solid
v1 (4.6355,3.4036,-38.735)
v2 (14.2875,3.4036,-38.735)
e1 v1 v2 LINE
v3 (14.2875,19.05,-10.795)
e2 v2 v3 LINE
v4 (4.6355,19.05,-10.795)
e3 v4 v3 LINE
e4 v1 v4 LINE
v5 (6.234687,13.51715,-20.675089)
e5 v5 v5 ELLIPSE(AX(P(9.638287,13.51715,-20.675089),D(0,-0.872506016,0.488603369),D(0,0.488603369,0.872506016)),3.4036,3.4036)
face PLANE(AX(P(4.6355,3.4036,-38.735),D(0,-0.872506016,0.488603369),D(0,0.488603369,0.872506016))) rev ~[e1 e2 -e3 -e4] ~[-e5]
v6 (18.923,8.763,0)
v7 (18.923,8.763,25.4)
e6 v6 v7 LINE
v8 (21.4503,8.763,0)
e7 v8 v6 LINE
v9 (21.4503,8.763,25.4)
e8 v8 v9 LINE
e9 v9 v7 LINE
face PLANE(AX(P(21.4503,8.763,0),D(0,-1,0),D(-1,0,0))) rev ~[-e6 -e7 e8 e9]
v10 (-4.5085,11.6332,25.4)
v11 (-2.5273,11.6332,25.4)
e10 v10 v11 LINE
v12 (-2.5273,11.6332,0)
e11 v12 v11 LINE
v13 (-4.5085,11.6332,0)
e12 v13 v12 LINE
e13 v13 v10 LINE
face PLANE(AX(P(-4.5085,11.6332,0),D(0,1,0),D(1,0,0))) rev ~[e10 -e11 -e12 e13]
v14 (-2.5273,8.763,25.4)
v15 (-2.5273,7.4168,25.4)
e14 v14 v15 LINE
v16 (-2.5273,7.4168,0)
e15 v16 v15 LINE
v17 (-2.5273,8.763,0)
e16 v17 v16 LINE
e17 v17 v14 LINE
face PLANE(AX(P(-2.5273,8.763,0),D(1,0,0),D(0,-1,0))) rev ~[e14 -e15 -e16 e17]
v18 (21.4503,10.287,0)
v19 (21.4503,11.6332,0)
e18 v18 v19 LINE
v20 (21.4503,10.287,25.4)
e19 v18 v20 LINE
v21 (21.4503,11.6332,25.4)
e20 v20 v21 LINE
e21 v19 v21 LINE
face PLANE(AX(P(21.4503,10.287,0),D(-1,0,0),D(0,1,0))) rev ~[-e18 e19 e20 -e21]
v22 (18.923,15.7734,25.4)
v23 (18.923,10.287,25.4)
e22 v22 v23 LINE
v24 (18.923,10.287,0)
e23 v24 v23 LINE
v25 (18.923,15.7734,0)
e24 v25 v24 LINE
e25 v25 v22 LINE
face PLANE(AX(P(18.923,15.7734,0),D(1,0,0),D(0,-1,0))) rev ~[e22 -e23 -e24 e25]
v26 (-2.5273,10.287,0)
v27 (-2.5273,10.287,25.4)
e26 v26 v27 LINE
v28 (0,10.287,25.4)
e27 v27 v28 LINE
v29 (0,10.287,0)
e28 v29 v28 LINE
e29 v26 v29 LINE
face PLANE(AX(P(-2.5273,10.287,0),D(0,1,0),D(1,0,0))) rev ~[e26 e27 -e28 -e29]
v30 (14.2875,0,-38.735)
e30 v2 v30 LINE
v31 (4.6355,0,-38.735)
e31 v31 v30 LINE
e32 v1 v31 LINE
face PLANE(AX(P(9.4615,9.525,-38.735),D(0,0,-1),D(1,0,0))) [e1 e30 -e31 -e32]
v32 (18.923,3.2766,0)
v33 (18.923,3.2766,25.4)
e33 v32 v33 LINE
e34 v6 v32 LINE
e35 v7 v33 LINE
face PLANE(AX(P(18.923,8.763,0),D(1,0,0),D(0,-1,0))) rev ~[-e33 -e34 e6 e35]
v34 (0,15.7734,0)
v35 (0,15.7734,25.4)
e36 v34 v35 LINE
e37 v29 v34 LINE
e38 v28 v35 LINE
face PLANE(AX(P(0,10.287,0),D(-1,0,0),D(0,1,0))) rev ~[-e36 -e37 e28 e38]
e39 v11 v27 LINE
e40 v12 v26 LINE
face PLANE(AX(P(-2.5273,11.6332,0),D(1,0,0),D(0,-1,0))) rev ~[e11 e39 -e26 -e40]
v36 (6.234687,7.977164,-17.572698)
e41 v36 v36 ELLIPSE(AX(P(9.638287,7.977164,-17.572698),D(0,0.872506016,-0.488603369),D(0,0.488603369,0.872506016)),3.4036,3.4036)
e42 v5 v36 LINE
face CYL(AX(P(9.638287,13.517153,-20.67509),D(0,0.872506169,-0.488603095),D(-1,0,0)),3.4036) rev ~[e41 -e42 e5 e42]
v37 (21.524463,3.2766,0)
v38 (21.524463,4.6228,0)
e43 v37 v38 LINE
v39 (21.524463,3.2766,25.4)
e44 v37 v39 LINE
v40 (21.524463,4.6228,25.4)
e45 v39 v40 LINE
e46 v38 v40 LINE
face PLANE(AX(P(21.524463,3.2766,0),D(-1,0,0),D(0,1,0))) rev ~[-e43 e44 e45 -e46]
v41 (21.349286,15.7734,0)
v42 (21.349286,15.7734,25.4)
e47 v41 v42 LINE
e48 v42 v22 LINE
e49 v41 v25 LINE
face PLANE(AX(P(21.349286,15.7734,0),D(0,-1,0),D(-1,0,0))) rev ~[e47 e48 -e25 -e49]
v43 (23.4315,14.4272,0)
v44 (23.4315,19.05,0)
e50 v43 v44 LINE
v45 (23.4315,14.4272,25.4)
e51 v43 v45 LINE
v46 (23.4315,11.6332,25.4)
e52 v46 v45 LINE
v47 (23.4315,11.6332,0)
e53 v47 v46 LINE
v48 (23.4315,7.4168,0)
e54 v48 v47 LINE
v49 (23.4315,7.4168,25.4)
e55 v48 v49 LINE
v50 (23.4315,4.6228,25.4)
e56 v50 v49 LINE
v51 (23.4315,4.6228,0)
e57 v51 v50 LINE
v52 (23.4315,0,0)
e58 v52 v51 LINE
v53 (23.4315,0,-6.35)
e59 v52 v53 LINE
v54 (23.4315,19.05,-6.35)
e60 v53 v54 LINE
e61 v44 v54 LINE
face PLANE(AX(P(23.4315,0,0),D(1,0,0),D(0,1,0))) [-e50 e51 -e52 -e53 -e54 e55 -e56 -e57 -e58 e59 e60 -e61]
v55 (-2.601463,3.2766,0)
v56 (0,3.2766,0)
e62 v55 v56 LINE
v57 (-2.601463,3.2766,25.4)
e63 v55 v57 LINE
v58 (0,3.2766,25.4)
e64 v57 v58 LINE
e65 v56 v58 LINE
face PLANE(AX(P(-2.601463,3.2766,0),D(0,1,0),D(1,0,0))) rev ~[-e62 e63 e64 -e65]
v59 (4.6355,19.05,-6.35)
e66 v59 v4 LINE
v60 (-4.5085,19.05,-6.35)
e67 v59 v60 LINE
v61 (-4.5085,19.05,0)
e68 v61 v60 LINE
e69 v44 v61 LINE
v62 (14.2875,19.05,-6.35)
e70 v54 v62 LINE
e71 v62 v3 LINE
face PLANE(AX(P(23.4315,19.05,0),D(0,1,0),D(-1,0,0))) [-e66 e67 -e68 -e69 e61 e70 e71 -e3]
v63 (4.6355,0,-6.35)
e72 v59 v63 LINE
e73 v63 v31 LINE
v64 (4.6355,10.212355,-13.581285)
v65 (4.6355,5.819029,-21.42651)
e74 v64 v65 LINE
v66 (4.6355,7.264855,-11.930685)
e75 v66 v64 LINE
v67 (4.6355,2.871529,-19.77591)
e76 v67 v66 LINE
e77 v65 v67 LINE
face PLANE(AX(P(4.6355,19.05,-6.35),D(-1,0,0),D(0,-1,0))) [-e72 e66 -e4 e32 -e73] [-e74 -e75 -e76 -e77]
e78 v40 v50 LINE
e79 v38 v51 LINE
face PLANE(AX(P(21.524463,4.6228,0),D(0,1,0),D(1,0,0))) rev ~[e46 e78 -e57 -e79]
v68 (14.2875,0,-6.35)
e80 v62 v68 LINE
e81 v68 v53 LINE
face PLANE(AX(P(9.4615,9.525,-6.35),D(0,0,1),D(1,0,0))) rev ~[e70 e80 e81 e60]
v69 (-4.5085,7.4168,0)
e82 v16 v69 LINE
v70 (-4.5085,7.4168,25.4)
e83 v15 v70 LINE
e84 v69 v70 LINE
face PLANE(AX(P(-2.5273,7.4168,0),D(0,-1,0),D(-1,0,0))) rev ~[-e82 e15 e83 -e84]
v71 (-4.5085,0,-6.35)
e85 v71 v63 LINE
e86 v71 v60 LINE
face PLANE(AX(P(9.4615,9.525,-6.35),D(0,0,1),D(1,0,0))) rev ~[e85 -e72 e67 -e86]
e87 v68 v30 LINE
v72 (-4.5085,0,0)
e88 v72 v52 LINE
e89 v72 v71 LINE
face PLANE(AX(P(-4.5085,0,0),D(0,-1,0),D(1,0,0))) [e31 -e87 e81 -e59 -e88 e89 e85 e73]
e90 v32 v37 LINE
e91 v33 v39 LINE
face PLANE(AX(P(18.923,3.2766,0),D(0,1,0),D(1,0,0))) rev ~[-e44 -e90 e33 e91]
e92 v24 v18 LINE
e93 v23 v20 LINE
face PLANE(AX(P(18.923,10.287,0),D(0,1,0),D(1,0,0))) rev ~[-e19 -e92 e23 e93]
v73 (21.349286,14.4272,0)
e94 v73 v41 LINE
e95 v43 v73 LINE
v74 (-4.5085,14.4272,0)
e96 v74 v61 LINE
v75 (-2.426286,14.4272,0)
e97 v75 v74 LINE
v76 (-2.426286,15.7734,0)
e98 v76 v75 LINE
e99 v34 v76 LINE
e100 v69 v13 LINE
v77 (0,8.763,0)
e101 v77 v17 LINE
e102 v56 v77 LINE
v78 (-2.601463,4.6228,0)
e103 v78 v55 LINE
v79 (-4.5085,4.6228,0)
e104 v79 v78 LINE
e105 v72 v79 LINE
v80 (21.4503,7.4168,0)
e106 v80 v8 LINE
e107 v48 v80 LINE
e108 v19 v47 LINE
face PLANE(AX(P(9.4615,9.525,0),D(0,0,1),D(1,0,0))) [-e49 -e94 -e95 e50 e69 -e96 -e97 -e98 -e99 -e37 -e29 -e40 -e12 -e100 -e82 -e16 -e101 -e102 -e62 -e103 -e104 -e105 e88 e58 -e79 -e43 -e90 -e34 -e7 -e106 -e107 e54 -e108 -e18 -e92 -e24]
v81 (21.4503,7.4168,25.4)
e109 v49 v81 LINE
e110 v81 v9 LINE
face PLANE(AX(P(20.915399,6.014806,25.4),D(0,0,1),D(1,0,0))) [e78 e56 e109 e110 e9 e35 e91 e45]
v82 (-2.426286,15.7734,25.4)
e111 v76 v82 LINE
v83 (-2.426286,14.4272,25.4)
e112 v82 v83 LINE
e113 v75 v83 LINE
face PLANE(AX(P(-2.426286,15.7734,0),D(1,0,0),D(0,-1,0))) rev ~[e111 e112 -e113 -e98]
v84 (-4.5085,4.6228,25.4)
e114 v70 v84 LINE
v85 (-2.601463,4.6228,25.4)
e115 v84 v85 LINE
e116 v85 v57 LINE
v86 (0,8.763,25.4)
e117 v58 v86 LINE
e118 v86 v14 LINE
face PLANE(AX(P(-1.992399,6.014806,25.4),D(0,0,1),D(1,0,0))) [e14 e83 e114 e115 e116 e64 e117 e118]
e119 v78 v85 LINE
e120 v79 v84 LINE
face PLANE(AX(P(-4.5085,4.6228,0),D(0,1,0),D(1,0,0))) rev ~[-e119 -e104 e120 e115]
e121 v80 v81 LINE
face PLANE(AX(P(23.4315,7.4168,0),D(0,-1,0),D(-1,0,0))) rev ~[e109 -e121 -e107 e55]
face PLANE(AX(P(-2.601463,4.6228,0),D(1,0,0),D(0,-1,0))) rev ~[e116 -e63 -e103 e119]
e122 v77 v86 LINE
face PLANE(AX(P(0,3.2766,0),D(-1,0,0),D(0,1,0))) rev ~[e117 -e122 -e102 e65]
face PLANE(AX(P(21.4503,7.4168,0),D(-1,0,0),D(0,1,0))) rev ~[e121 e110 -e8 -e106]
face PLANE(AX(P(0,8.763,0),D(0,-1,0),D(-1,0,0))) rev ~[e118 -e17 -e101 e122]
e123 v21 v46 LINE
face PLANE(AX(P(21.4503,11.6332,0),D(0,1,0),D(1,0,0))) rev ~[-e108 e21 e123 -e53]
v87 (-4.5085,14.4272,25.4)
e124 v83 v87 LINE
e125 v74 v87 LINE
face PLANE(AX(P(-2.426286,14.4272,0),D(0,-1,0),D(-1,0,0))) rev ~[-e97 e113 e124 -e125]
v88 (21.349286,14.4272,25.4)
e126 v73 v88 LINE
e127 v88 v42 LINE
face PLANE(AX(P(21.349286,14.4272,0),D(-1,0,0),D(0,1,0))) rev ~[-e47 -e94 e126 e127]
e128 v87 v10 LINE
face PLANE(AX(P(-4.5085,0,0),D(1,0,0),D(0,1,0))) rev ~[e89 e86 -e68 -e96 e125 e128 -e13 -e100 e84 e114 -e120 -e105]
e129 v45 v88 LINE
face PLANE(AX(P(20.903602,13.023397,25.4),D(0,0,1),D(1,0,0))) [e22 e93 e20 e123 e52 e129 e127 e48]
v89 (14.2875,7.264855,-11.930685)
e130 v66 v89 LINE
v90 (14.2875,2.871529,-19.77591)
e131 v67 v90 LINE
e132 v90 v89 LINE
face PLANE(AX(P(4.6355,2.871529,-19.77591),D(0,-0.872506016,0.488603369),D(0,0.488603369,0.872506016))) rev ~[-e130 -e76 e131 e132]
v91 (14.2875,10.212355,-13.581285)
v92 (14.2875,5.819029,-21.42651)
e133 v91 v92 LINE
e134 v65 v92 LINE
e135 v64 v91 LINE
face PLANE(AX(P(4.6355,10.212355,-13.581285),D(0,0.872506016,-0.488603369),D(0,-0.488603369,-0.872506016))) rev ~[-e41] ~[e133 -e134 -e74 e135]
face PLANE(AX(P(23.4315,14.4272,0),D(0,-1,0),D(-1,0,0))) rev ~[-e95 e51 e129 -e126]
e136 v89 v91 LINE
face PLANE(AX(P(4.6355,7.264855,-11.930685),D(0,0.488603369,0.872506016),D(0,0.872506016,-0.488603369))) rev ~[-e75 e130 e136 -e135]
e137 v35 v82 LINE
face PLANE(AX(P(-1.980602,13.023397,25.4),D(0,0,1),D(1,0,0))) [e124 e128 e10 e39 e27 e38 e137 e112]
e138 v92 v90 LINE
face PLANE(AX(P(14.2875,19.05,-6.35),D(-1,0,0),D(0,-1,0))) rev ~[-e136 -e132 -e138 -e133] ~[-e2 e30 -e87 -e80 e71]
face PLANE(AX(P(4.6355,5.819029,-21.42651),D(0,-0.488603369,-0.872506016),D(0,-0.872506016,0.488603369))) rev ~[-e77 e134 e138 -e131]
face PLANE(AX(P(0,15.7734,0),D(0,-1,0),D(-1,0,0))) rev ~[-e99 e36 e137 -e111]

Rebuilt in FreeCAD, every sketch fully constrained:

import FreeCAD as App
import Part
import Sketcher
from FreeCAD import Vector
Q = App.Units.Quantity

doc = App.newDocument("Part")
body = doc.addObject("PartDesign::Body", "Body")

# Sketch on XY plane
sketch1 = body.newObject("Sketcher::SketchObject", "Sketch")
sketch1.AttachmentSupport = (doc.getObject("XY_Plane"), [""])
sketch1.MapMode = "FlatFace"
sketch1.addGeometry([
    Part.LineSegment(Vector(-5, 19, 0), Vector(-5, 0, 0)),
    Part.LineSegment(Vector(-5, 0, 0), Vector(23, 0, 0)),
    Part.LineSegment(Vector(23, 0, 0), Vector(23, 19, 0)),
    Part.LineSegment(Vector(23, 19, 0), Vector(-5, 19, 0)),
], False)
sketch1.addConstraint([
    Sketcher.Constraint("Coincident", 0, 2, 1, 1),
    Sketcher.Constraint("Coincident", 1, 2, 2, 1),
    Sketcher.Constraint("Coincident", 2, 2, 3, 1),
    Sketcher.Constraint("Coincident", 3, 2, 0, 1),
    Sketcher.Constraint("Vertical", 0),
    Sketcher.Constraint("Horizontal", 1),
    Sketcher.Constraint("Vertical", 2),
    Sketcher.Constraint("Horizontal", 3),
    Sketcher.Constraint("PointOnObject", 0, 2, -1),
    Sketcher.Constraint("DistanceX", 1, 1, 1, 2, Q("1.1 in")),
    Sketcher.Constraint("DistanceY", 0, 2, 0, 1, Q("0.75 in")),
    Sketcher.Constraint("DistanceX", 0, 2, -1, 1, Q("0.1775 in")),
])
pad1 = body.newObject("PartDesign::Pad", "Pad")
pad1.Profile = sketch1
pad1.Length = Q("0.25 in")
pad1.Reversed = True

# Sketch on XY plane
sketch2 = body.newObject("Sketcher::SketchObject", "Sketch001")
sketch2.AttachmentSupport = (doc.getObject("XY_Plane"), [""])
sketch2.MapMode = "FlatFace"
sketch2.addGeometry([
    Part.LineSegment(Vector(-2.5, 10.3, 0), Vector(0, 10.3, 0)),  # 0
    Part.LineSegment(Vector(0, 10.3, 0), Vector(0, 15.8, 0)),  # 1
    Part.LineSegment(Vector(0, 15.8, 0), Vector(-2.4, 15.8, 0)),  # 2
    Part.LineSegment(Vector(-2.4, 15.8, 0), Vector(-2.4, 14.4, 0)),  # 3
    Part.LineSegment(Vector(-2.4, 14.4, 0), Vector(-4.5, 14.4, 0)),  # 4
    Part.LineSegment(Vector(-4.5, 14.4, 0), Vector(-4.5, 11.6, 0)),  # 5
    Part.LineSegment(Vector(-4.5, 11.6, 0), Vector(-2.5, 11.6, 0)),  # 6
    Part.LineSegment(Vector(-2.5, 11.6, 0), Vector(-2.5, 10.3, 0)),  # 7
    Part.LineSegment(Vector(21.5, 7.4, 0), Vector(21.5, 8.8, 0)),  # 8
    Part.LineSegment(Vector(21.5, 8.8, 0), Vector(18.9, 8.8, 0)),  # 9
    Part.LineSegment(Vector(18.9, 8.8, 0), Vector(18.9, 3.3, 0)),  # 10
    Part.LineSegment(Vector(18.9, 3.3, 0), Vector(21.5, 3.3, 0)),  # 11
    Part.LineSegment(Vector(21.5, 3.3, 0), Vector(21.5, 4.6, 0)),  # 12
    Part.LineSegment(Vector(21.5, 4.6, 0), Vector(23.4, 4.6, 0)),  # 13
    Part.LineSegment(Vector(23.4, 4.6, 0), Vector(23.4, 7.4, 0)),  # 14
    Part.LineSegment(Vector(23.4, 7.4, 0), Vector(21.5, 7.4, 0)),  # 15
    Part.LineSegment(Vector(18.9, 15.8, 0), Vector(18.9, 10.3, 0)),  # 16
    Part.LineSegment(Vector(18.9, 10.3, 0), Vector(21.5, 10.3, 0)),  # 17
    Part.LineSegment(Vector(21.5, 10.3, 0), Vector(21.5, 11.6, 0)),  # 18
    Part.LineSegment(Vector(21.5, 11.6, 0), Vector(23.4, 11.6, 0)),  # 19
    Part.LineSegment(Vector(23.4, 11.6, 0), Vector(23.4, 14.4, 0)),  # 20
    Part.LineSegment(Vector(23.4, 14.4, 0), Vector(21.3, 14.4, 0)),  # 21
    Part.LineSegment(Vector(21.3, 14.4, 0), Vector(21.3, 15.8, 0)),  # 22
    Part.LineSegment(Vector(21.3, 15.8, 0), Vector(18.9, 15.8, 0)),  # 23
    Part.LineSegment(Vector(0, 3.3, 0), Vector(0, 8.8, 0)),  # 24
    Part.LineSegment(Vector(0, 8.8, 0), Vector(-2.5, 8.8, 0)),  # 25
    Part.LineSegment(Vector(-2.5, 8.8, 0), Vector(-2.5, 7.4, 0)),  # 26
    Part.LineSegment(Vector(-2.5, 7.4, 0), Vector(-4.5, 7.4, 0)),  # 27
    Part.LineSegment(Vector(-4.5, 7.4, 0), Vector(-4.5, 4.6, 0)),  # 28
    Part.LineSegment(Vector(-4.5, 4.6, 0), Vector(-2.6, 4.6, 0)),  # 29
    Part.LineSegment(Vector(-2.6, 4.6, 0), Vector(-2.6, 3.3, 0)),  # 30
    Part.LineSegment(Vector(-2.6, 3.3, 0), Vector(0, 3.3, 0)),  # 31
], False)
sketch2.addConstraint([
    Sketcher.Constraint("Coincident", 0, 2, 1, 1),
    Sketcher.Constraint("Coincident", 1, 2, 2, 1),
    Sketcher.Constraint("Coincident", 2, 2, 3, 1),
    Sketcher.Constraint("Coincident", 3, 2, 4, 1),
    Sketcher.Constraint("Coincident", 4, 2, 5, 1),
    Sketcher.Constraint("Coincident", 5, 2, 6, 1),
    Sketcher.Constraint("Coincident", 6, 2, 7, 1),
    Sketcher.Constraint("Coincident", 7, 2, 0, 1),
    Sketcher.Constraint("Coincident", 8, 2, 9, 1),
    Sketcher.Constraint("Coincident", 9, 2, 10, 1),
    Sketcher.Constraint("Coincident", 10, 2, 11, 1),
    Sketcher.Constraint("Coincident", 11, 2, 12, 1),
    Sketcher.Constraint("Coincident", 12, 2, 13, 1),
    Sketcher.Constraint("Coincident", 13, 2, 14, 1),
    Sketcher.Constraint("Coincident", 14, 2, 15, 1),
    Sketcher.Constraint("Coincident", 15, 2, 8, 1),
    Sketcher.Constraint("Coincident", 16, 2, 17, 1),
    Sketcher.Constraint("Coincident", 17, 2, 18, 1),
    Sketcher.Constraint("Coincident", 18, 2, 19, 1),
    Sketcher.Constraint("Coincident", 19, 2, 20, 1),
    Sketcher.Constraint("Coincident", 20, 2, 21, 1),
    Sketcher.Constraint("Coincident", 21, 2, 22, 1),
    Sketcher.Constraint("Coincident", 22, 2, 23, 1),
    Sketcher.Constraint("Coincident", 23, 2, 16, 1),
    Sketcher.Constraint("Coincident", 24, 2, 25, 1),
    Sketcher.Constraint("Coincident", 25, 2, 26, 1),
    Sketcher.Constraint("Coincident", 26, 2, 27, 1),
    Sketcher.Constraint("Coincident", 27, 2, 28, 1),
    Sketcher.Constraint("Coincident", 28, 2, 29, 1),
    Sketcher.Constraint("Coincident", 29, 2, 30, 1),
    Sketcher.Constraint("Coincident", 30, 2, 31, 1),
    Sketcher.Constraint("Coincident", 31, 2, 24, 1),
    Sketcher.Constraint("Horizontal", 0),
    Sketcher.Constraint("Vertical", 1),
    Sketcher.Constraint("Horizontal", 2),
    Sketcher.Constraint("Vertical", 3),
    Sketcher.Constraint("Horizontal", 4),
    Sketcher.Constraint("Vertical", 5),
    Sketcher.Constraint("Horizontal", 6),
    Sketcher.Constraint("Vertical", 7),
    Sketcher.Constraint("Vertical", 8),
    Sketcher.Constraint("Horizontal", 9),
    Sketcher.Constraint("Vertical", 10),
    Sketcher.Constraint("Horizontal", 11),
    Sketcher.Constraint("Vertical", 12),
    Sketcher.Constraint("Horizontal", 13),
    Sketcher.Constraint("Vertical", 14),
    Sketcher.Constraint("Horizontal", 15),
    Sketcher.Constraint("Vertical", 16),
    Sketcher.Constraint("Horizontal", 17),
    Sketcher.Constraint("Vertical", 18),
    Sketcher.Constraint("Horizontal", 19),
    Sketcher.Constraint("Vertical", 20),
    Sketcher.Constraint("Horizontal", 21),
    Sketcher.Constraint("Vertical", 22),
    Sketcher.Constraint("Horizontal", 23),
    Sketcher.Constraint("Vertical", 24),
    Sketcher.Constraint("Horizontal", 25),
    Sketcher.Constraint("Vertical", 26),
    Sketcher.Constraint("Horizontal", 27),
    Sketcher.Constraint("Vertical", 28),
    Sketcher.Constraint("Horizontal", 29),
    Sketcher.Constraint("Vertical", 30),
    Sketcher.Constraint("Horizontal", 31),
    Sketcher.Constraint("PointOnObject", 0, 2, -2),
    Sketcher.Constraint("PointOnObject", 24, 2, -2),
    Sketcher.Constraint("Horizontal", 7, 2, 16, 2),
    Sketcher.Constraint("Horizontal", 6, 2, 18, 2),
    Sketcher.Constraint("Horizontal", 4, 2, 20, 2),
    Sketcher.Constraint("Horizontal", 2, 2, 22, 2),
    Sketcher.Constraint("Horizontal", 9, 2, 24, 2),
    Sketcher.Constraint("Horizontal", 15, 2, 26, 2),
    Sketcher.Constraint("Horizontal", 13, 2, 28, 2),
    Sketcher.Constraint("Horizontal", 11, 2, 30, 2),
    Sketcher.Constraint("Vertical", 10, 2, 16, 2),
    Sketcher.Constraint("Vertical", 15, 2, 17, 2),
    Sketcher.Constraint("Vertical", 14, 2, 19, 2),
    Sketcher.Constraint("Vertical", 7, 2, 25, 2),
    Sketcher.Constraint("Vertical", 5, 2, 27, 2),
    Sketcher.Constraint("Equal", 0, 9),
    Sketcher.Constraint("Equal", 6, 15),
    Sketcher.Constraint("Equal", 4, 21),
    Sketcher.Constraint("Equal", 13, 29),
    Sketcher.Constraint("Equal", 3, 7),
    Sketcher.Constraint("Equal", 7, 8),
    Sketcher.Constraint("Equal", 1, 10),
    Sketcher.Constraint("Equal", 8, 12),
    Sketcher.Constraint("DistanceY", 5, 2, 5, 1, Q("0.11 in")),
    Sketcher.Constraint("DistanceX", 6, 1, 6, 2, Q("0.078 in")),
    Sketcher.Constraint("DistanceY", 1, 1, 1, 2, Q("0.216 in")),
    Sketcher.Constraint("DistanceY", 8, 2, 0, 2, Q("0.06 in")),
    Sketcher.Constraint("DistanceX", 0, 1, 0, 2, Q("0.0995 in")),
    Sketcher.Constraint("DistanceY", -1, 1, 0, 2, Q("0.405 in")),
    Sketcher.Constraint("DistanceX", -1, 1, 9, 2, Q("0.745 in")),
    Sketcher.Constraint("DistanceX", 2, 2, 2, 1, 2.426286),
    Sketcher.Constraint("DistanceX", 11, 1, 11, 2, 2.601463),
])
pad2 = body.newObject("PartDesign::Pad", "Pad001")
pad2.Profile = sketch2
pad2.Length = Q("1 in")

# Sketch on XY plane
sketch3 = body.newObject("Sketcher::SketchObject", "Sketch002")
sketch3.AttachmentSupport = (doc.getObject("XY_Plane"), [""])
sketch3.MapMode = "FlatFace"
sketch3.AttachmentOffset = App.Placement(Vector(0, 0, -0.25 * 25.4), App.Rotation())
sketch3.addGeometry([
    Part.LineSegment(Vector(5, 0, 0), Vector(5, 19, 0)),
    Part.LineSegment(Vector(5, 19, 0), Vector(14, 19, 0)),
    Part.LineSegment(Vector(14, 19, 0), Vector(14, 0, 0)),
    Part.LineSegment(Vector(14, 0, 0), Vector(5, 0, 0)),
], False)
sketch3.addConstraint([
    Sketcher.Constraint("Coincident", 0, 2, 1, 1),
    Sketcher.Constraint("Coincident", 1, 2, 2, 1),
    Sketcher.Constraint("Coincident", 2, 2, 3, 1),
    Sketcher.Constraint("Coincident", 3, 2, 0, 1),
    Sketcher.Constraint("Vertical", 0),
    Sketcher.Constraint("Horizontal", 1),
    Sketcher.Constraint("Vertical", 2),
    Sketcher.Constraint("Horizontal", 3),
    Sketcher.Constraint("PointOnObject", 2, 2, -1),
    Sketcher.Constraint("DistanceX", 1, 1, 1, 2, Q("0.38 in")),
    Sketcher.Constraint("DistanceY", 0, 1, 0, 2, Q("0.75 in")),
    Sketcher.Constraint("DistanceX", -1, 1, 1, 2, Q("0.5625 in")),
])
pad3 = body.newObject("PartDesign::Pad", "Pad002")
pad3.Profile = sketch3
pad3.Length = Q("1.275 in")
pad3.Reversed = True

# Sketch on YZ plane
sketch4 = body.newObject("Sketcher::SketchObject", "Sketch003")
sketch4.AttachmentSupport = (doc.getObject("YZ_Plane"), [""])
sketch4.MapMode = "FlatFace"
sketch4.AttachmentOffset = App.Placement(Vector(0, 0, 0.1825 * 25.4), App.Rotation())
sketch4.addGeometry([
    Part.LineSegment(Vector(19, -39, 0), Vector(3, -39, 0)),
    Part.LineSegment(Vector(3, -39, 0), Vector(19, -11, 0)),
    Part.LineSegment(Vector(19, -11, 0), Vector(19, -39, 0)),
], False)
sketch4.addConstraint([
    Sketcher.Constraint("Coincident", 0, 2, 1, 1),
    Sketcher.Constraint("Coincident", 1, 2, 2, 1),
    Sketcher.Constraint("Coincident", 2, 2, 0, 1),
    Sketcher.Constraint("Horizontal", 0),
    Sketcher.Constraint("Vertical", 2),
    Sketcher.Constraint("DistanceY", 2, 2, 2, 1, Q("1.1 in")),
    Sketcher.Constraint("DistanceX", 0, 2, 0, 1, Q("0.616 in")),
    Sketcher.Constraint("DistanceX", -1, 1, 1, 2, Q("0.75 in")),
    Sketcher.Constraint("DistanceY", 0, 2, -1, 1, Q("1.525 in")),
])
pocket1 = body.newObject("PartDesign::Pocket", "Pocket")
pocket1.Profile = sketch4
pocket1.Length = Q("1 in")
pocket1.Reversed = True

# Sketch on an angled plane
sketch5 = body.newObject("Sketcher::SketchObject", "Sketch004")
sketch5.Placement = App.Placement(Vector(0, 19.104141, -10.698319), App.Rotation(Vector(-1, 0, 0), Vector(0, 0.488603095, 0.872506169), Vector(0, 0.872506169, -0.488603095), "ZXY"))
sketch5.addGeometry(Part.Circle(Vector(-9.6, -11.4, 0), Vector(0, 0, 1), 3.4), False)
sketch5.addConstraint([
    Sketcher.Constraint("Diameter", 0, Q("0.268 in")),
    Sketcher.Constraint("DistanceX", 0, 3, -1, 1, 9.638287),
    Sketcher.Constraint("DistanceY", 0, 3, -1, 1, 11.434614),
])
pocket2 = body.newObject("PartDesign::Pocket", "Pocket001")
pocket2.Profile = sketch5
pocket2.Length = Q("0.25 in")

# Sketch on YZ plane
sketch6 = body.newObject("Sketcher::SketchObject", "Sketch005")
sketch6.AttachmentSupport = (doc.getObject("YZ_Plane"), [""])
sketch6.MapMode = "FlatFace"
sketch6.AttachmentOffset = App.Placement(Vector(0, 0, 0.1825 * 25.4), App.Rotation())
sketch6.addGeometry([
    Part.LineSegment(Vector(7.3, -11.9, 0), Vector(10.2, -13.6, 0)),
    Part.LineSegment(Vector(10.2, -13.6, 0), Vector(5.8, -21.4, 0)),
    Part.LineSegment(Vector(5.8, -21.4, 0), Vector(2.9, -19.8, 0)),
    Part.LineSegment(Vector(2.9, -19.8, 0), Vector(7.3, -11.9, 0)),
], False)
sketch6.addConstraint([
    Sketcher.Constraint("Coincident", 0, 2, 1, 1),
    Sketcher.Constraint("Coincident", 1, 2, 2, 1),
    Sketcher.Constraint("Coincident", 2, 2, 3, 1),
    Sketcher.Constraint("Coincident", 3, 2, 0, 1),
    Sketcher.Constraint("Perpendicular", 0, 1),
    Sketcher.Constraint("Perpendicular", 1, 2),
    Sketcher.Constraint("Perpendicular", 2, 3),
    Sketcher.Constraint("Distance", 0, Q("0.133 in")),
    Sketcher.Constraint("Distance", 1, Q("0.354 in")),
    Sketcher.Constraint("DistanceX", 2, 2, 1, 2, 2.9475),
    Sketcher.Constraint("DistanceX", -1, 1, 1, 2, 5.819029),
    Sketcher.Constraint("DistanceY", 1, 2, -1, 1, 21.42651),
])
pocket3 = body.newObject("PartDesign::Pocket", "Pocket002")
pocket3.Profile = sketch6
pocket3.Length = Q("1 in")
pocket3.Reversed = True

doc.recompute()
